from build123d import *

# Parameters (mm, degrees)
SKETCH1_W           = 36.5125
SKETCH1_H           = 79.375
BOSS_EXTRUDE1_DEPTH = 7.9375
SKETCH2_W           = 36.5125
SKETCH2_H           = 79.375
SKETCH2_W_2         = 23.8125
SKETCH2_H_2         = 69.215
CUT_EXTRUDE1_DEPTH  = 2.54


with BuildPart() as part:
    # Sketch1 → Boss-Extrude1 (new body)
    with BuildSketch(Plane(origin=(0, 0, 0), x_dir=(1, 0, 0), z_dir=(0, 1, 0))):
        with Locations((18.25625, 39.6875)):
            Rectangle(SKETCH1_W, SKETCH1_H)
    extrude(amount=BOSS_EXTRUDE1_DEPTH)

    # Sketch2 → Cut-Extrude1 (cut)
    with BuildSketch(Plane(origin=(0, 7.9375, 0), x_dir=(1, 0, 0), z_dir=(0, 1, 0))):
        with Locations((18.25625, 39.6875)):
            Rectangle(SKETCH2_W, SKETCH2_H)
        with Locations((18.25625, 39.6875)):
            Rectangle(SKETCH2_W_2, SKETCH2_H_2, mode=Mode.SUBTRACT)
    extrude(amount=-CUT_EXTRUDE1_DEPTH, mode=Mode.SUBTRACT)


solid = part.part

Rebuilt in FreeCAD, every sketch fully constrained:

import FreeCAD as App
import Part
import Sketcher
Q = App.Units.Quantity


def add_polygon(sketch, points):
    """Adds a closed chain of lines whose ends are joined by coincident constraints."""
    first, n = sketch.GeometryCount, len(points)
    for a, b in zip(points, points[1:] + points[:1]):
        sketch.addGeometry(Part.LineSegment(App.Vector(*a, 0), App.Vector(*b, 0)), False)
    for i in range(n):
        sketch.addConstraint(Sketcher.Constraint("Coincident", first + i, 2, first + (i + 1) % n, 1))

doc = App.newDocument("Part")
body = doc.addObject("PartDesign::Body", "Body")

# Sketch on XZ plane
sketch1 = body.newObject("Sketcher::SketchObject", "Sketch")
sketch1.AttachmentSupport = (doc.getObject("XZ_Plane"), [""])
sketch1.MapMode = "FlatFace"
add_polygon(sketch1, [(0, -79.375), (0, 0), (36.5125, 0), (36.5125, -79.375)])  # lines 0-3
sketch1.addConstraint([
    Sketcher.Constraint("Vertical", 0),
    Sketcher.Constraint("Horizontal", 1),
    Sketcher.Constraint("Vertical", 2),
    Sketcher.Constraint("Horizontal", 3),
    Sketcher.Constraint("Coincident", 0, 2, -1, 1),
    Sketcher.Constraint("DistanceX", 1, 1, 1, 2, Q("1.4375 in")),
    Sketcher.Constraint("DistanceY", 0, 1, 0, 2, Q("3.125 in")),
])
pad1 = body.newObject("PartDesign::Pad", "Pad")
pad1.Profile = sketch1
pad1.Length = Q("0.3125 in")
pad1.Reversed = True

# Sketch on XZ plane
sketch2 = body.newObject("Sketcher::SketchObject", "Sketch001")
sketch2.AttachmentSupport = (doc.getObject("XZ_Plane"), [""])
sketch2.MapMode = "FlatFace"
sketch2.AttachmentOffset = App.Placement(App.Vector(0, 0, -0.3125 * 25.4), App.Rotation())
add_polygon(sketch2, [(0, -79.375), (0, 0), (36.5125, 0), (36.5125, -79.375)])  # lines 0-3
add_polygon(sketch2, [(30.1625, -5.08), (6.35, -5.08), (6.35, -74.295), (30.1625, -74.295)])  # lines 4-7
sketch2.addConstraint([
    Sketcher.Constraint("Vertical", 0),
    Sketcher.Constraint("Horizontal", 1),
    Sketcher.Constraint("Vertical", 2),
    Sketcher.Constraint("Horizontal", 3),
    Sketcher.Constraint("Horizontal", 4),
    Sketcher.Constraint("Vertical", 5),
    Sketcher.Constraint("Horizontal", 6),
    Sketcher.Constraint("Vertical", 7),
    Sketcher.Constraint("Coincident", 0, 2, -1, 1),
    Sketcher.Constraint("DistanceY", 4, 2, -1, 1, Q("0.2 in")),
    Sketcher.Constraint("DistanceY", 3, 2, 5, 2, Q("0.2 in")),
    Sketcher.Constraint("DistanceX", 1, 1, 1, 2, Q("1.4375 in")),
    Sketcher.Constraint("DistanceX", 4, 2, 4, 1, Q("0.9375 in")),
    Sketcher.Constraint("DistanceY", 0, 1, 0, 2, Q("3.125 in")),
    Sketcher.Constraint("DistanceX", -1, 1, 4, 2, Q("0.25 in")),
])
pocket1 = body.newObject("PartDesign::Pocket", "Pocket")
pocket1.Profile = sketch2
pocket1.Length = Q("0.1 in")
pocket1.Reversed = True

doc.recompute()
